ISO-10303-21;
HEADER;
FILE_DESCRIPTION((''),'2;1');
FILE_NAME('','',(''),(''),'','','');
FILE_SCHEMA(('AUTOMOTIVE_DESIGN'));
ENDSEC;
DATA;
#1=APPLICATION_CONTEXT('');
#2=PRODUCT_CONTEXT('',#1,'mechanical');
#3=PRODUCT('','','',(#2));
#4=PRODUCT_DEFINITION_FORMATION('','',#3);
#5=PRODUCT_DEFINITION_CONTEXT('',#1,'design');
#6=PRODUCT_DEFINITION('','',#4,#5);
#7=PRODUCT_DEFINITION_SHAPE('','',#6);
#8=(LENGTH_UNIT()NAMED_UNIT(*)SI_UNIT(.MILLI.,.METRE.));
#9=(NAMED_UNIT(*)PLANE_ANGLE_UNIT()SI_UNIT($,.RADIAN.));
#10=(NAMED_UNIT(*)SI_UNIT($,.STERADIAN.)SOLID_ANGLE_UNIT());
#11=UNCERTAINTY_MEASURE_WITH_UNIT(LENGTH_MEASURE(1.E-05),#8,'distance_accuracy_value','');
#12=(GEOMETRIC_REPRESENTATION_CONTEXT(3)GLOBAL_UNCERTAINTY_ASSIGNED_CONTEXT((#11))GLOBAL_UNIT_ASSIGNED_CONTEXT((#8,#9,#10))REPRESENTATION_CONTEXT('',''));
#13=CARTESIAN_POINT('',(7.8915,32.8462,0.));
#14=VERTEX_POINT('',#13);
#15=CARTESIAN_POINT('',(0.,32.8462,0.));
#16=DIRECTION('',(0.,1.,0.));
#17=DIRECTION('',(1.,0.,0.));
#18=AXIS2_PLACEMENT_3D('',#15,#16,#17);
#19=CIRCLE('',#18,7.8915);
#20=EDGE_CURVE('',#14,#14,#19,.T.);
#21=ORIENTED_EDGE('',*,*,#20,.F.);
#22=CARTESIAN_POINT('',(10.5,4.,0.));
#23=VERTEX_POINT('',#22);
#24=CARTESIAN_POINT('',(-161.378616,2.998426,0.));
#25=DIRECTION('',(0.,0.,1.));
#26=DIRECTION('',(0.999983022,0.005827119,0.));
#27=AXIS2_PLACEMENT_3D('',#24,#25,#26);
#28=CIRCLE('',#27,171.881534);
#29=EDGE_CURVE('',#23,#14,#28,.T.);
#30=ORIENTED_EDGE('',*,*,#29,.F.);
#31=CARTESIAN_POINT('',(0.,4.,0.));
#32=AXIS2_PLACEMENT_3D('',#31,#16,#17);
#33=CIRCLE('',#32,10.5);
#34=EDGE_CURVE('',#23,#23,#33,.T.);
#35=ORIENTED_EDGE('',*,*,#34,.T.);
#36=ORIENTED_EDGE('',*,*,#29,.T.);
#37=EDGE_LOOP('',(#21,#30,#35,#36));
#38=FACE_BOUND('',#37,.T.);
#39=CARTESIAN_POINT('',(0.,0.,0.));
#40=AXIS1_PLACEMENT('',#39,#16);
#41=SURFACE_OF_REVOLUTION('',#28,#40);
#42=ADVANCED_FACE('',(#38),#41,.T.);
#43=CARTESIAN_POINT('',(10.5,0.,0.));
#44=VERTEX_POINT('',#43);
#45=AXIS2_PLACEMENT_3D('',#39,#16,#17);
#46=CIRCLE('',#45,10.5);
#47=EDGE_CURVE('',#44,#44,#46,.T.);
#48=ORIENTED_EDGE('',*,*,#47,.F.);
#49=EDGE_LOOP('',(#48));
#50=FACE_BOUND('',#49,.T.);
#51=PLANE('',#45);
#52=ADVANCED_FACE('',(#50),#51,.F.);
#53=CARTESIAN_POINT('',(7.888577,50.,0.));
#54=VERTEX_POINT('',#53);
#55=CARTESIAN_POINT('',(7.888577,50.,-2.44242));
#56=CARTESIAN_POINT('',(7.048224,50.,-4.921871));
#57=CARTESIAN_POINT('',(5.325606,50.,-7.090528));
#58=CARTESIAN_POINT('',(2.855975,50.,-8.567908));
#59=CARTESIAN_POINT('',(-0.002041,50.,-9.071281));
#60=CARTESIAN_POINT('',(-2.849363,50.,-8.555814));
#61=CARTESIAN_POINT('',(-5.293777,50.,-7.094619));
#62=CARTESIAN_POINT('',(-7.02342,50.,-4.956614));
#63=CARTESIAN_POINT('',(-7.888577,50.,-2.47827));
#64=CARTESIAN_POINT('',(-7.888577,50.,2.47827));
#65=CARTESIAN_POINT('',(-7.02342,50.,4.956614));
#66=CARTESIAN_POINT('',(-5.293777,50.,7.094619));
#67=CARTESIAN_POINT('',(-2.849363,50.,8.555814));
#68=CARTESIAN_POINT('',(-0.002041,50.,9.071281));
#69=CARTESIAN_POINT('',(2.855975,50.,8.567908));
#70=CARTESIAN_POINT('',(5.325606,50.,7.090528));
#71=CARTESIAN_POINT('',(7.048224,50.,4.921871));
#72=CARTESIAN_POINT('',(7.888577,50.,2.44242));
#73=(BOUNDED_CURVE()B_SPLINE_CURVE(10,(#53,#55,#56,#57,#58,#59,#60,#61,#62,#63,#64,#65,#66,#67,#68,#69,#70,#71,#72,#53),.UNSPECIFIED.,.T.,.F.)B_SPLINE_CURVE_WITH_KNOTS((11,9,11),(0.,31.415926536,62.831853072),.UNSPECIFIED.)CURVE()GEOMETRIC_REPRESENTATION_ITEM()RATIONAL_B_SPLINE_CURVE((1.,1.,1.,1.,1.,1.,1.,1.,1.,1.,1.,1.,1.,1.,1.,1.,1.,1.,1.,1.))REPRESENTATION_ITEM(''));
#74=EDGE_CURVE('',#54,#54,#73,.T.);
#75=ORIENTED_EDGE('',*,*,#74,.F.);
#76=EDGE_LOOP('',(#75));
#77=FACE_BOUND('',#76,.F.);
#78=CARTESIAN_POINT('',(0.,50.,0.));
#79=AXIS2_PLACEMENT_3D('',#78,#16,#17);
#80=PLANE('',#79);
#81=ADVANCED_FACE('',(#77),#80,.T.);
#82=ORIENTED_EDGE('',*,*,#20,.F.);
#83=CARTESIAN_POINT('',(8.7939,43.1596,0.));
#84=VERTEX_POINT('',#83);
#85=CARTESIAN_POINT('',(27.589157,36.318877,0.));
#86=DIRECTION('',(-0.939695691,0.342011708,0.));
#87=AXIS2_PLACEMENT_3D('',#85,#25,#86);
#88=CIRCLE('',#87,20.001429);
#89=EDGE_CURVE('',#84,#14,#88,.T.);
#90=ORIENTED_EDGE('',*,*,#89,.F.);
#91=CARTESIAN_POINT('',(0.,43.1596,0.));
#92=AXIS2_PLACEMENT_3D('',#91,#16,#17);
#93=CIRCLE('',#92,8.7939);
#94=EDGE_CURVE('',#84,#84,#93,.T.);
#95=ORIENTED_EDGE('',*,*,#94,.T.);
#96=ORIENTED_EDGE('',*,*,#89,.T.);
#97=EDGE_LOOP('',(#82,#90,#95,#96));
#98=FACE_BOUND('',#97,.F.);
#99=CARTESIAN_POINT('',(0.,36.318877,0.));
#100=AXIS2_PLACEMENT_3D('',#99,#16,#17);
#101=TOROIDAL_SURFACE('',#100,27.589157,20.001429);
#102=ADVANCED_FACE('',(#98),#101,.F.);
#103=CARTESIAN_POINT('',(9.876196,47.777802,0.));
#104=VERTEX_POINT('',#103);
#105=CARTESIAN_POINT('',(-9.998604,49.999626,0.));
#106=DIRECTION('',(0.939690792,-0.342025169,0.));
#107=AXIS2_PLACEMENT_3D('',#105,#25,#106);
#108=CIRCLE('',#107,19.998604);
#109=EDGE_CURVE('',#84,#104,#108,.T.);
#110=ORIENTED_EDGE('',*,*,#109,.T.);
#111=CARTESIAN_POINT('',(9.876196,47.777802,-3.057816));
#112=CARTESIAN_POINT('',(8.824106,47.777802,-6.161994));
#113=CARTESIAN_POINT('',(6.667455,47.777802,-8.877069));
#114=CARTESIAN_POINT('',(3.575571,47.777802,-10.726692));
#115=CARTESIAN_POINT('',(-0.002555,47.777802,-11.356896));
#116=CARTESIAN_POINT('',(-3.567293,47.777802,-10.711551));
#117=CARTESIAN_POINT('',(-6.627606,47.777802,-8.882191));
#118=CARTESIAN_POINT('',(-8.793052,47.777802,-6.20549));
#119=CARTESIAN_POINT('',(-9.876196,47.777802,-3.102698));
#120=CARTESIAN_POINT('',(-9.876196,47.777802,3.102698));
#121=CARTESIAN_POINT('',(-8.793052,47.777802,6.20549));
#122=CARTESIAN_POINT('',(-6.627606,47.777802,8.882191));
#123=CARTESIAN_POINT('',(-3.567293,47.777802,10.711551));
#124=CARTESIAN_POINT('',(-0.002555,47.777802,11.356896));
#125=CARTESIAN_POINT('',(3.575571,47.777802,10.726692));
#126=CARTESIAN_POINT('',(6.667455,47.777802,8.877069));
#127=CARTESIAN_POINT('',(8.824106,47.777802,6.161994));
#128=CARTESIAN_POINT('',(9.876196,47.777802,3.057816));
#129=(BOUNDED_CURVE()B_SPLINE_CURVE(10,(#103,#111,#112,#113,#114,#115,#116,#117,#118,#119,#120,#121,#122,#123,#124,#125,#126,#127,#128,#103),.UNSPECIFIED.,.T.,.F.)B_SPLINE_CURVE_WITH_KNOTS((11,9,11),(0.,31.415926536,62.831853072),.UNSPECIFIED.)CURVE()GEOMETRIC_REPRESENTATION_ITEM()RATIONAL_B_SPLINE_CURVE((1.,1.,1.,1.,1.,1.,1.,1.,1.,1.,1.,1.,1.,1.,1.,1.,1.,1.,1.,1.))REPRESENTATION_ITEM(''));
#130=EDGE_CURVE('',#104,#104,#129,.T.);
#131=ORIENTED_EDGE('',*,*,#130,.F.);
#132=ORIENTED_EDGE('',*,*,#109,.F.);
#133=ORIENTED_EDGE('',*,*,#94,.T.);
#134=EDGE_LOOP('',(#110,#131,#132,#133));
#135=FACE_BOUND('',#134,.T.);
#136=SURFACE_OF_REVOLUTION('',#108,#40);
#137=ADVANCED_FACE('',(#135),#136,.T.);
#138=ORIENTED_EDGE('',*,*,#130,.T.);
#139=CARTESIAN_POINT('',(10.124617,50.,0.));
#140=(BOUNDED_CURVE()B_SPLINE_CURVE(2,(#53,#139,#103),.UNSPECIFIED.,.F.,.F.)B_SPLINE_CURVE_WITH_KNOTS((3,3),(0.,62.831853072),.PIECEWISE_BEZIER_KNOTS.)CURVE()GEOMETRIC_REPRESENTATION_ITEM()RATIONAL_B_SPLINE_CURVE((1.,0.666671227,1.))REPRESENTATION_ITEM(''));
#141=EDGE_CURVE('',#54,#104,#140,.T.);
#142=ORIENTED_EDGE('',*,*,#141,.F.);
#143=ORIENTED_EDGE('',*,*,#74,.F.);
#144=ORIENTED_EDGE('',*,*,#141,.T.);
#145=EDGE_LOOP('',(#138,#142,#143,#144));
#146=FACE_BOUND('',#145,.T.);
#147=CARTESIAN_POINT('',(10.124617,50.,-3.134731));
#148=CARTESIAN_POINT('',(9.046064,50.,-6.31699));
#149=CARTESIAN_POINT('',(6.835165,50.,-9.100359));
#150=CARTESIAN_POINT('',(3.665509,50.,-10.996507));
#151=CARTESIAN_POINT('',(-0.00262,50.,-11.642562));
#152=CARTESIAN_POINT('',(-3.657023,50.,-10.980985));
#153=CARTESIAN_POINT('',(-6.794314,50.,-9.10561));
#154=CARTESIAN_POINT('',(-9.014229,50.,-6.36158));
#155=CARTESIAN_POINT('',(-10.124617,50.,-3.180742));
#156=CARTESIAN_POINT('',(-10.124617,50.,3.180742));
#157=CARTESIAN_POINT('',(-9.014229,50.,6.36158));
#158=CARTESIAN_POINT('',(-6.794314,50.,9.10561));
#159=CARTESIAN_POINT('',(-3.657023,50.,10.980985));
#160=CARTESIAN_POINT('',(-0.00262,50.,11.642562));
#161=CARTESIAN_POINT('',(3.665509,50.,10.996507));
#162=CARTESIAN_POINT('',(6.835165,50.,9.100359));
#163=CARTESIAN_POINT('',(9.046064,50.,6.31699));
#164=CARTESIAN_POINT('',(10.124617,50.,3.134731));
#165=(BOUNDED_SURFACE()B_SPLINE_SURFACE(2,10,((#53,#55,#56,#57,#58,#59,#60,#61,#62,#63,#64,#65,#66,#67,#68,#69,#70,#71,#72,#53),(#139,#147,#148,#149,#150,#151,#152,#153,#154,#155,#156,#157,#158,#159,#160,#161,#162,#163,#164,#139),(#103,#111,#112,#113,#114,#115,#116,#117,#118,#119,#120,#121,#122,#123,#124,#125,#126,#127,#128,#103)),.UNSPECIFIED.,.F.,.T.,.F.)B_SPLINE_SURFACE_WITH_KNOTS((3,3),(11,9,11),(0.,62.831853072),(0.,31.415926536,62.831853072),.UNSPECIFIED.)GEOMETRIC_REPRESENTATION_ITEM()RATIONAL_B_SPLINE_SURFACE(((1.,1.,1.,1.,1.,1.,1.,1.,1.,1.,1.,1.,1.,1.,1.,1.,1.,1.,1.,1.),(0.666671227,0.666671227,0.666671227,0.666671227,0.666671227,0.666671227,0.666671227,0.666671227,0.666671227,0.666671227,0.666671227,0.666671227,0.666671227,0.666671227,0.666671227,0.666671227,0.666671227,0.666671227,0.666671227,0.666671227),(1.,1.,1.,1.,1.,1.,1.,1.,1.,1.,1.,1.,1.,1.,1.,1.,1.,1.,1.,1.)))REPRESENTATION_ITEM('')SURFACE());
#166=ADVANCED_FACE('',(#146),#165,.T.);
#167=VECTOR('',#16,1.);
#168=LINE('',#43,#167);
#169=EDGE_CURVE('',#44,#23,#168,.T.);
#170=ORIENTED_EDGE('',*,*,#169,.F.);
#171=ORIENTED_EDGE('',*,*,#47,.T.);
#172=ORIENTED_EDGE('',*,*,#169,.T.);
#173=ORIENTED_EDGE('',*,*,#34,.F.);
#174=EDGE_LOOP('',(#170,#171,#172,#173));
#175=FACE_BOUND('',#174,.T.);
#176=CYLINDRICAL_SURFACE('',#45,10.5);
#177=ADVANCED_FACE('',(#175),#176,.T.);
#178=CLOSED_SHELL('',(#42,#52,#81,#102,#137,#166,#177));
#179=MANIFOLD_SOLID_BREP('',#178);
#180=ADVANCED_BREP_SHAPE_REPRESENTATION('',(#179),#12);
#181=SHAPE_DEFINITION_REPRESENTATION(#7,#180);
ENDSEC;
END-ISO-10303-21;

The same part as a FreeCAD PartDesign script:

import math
import FreeCAD as App
import Part
import Sketcher

V = App.Vector
Q = App.Units.Quantity


def edges_at(feature, points):
    """Names of the edges that pass closest to the given points."""
    edges = feature.Shape.Edges
    near = lambda p: min(range(len(edges)), key=lambda i: edges[i].distToShape(Part.Vertex(*p))[0])
    return sorted({f"Edge{near(p) + 1}" for p in points})

doc = App.newDocument("Part")
body = doc.addObject("PartDesign::Body", "Body")

# Sketch on XY plane
sketch1 = body.newObject("Sketcher::SketchObject", "Sketch")
sketch1.AttachmentSupport = (doc.getObject("XY_Plane"), [""])
sketch1.MapMode = "FlatFace"
sketch1.addGeometry(Part.LineSegment(V(0, 50, 0), V(0, 0, 0)), False)
sketch1.addGeometry(Part.LineSegment(V(0, 0, 0), V(10.5, 0, 0)), False)
sketch1.addGeometry(Part.LineSegment(V(10.5, 0, 0), V(10.5, 4, 0)), False)
sketch1.addGeometry(Part.ArcOfCircle(Part.Circle(V(-161.4, 3, 0), V(0, 0, 1), 171.9), math.radians(0.33), math.radians(10)), False)
sketch1.addGeometry(Part.ArcOfCircle(Part.Circle(V(27.6, 36.3, 0), V(0, 0, 1), 20), math.radians(160), math.radians(190)), False)
sketch1.addGeometry(Part.ArcOfCircle(Part.Circle(V(-10, 50, 0), V(0, 0, 1), 20), math.radians(-20), math.radians(0)), False)
sketch1.addGeometry(Part.LineSegment(V(10, 50, 0), V(0, 50, 0)), False)
sketch1.addConstraint(Sketcher.Constraint("Coincident", 0, 2, 1, 1))
sketch1.addConstraint(Sketcher.Constraint("Coincident", 1, 2, 2, 1))
sketch1.addConstraint(Sketcher.Constraint("Coincident", 2, 2, 3, 1))
sketch1.addConstraint(Sketcher.Constraint("Tangent", 3, 2, 4, 2))
sketch1.addConstraint(Sketcher.Constraint("Tangent", 4, 1, 5, 1))
sketch1.addConstraint(Sketcher.Constraint("Coincident", 5, 2, 6, 1))
sketch1.addConstraint(Sketcher.Constraint("Coincident", 6, 2, 0, 1))
sketch1.addConstraint(Sketcher.Constraint("Vertical", 0))
sketch1.addConstraint(Sketcher.Constraint("Horizontal", 1))
sketch1.addConstraint(Sketcher.Constraint("Vertical", 2))
sketch1.addConstraint(Sketcher.Constraint("Horizontal", 6))
sketch1.addConstraint(Sketcher.Constraint("Coincident", 0, 2, -1, 1))
sketch1.addConstraint(Sketcher.Constraint("DistanceX", 6, 2, 6, 1, Q("10 mm")))
sketch1.addConstraint(Sketcher.Constraint("DistanceY", 0, 2, 0, 1, Q("50 mm")))
sketch1.addConstraint(Sketcher.Constraint("DistanceY", 2, 1, 2, 2, Q("4 mm")))
sketch1.addConstraint(Sketcher.Constraint("DistanceX", 1, 1, 1, 2, Q("10.5 mm")))
sketch1.addConstraint(Sketcher.Constraint("DistanceY", 4, 1, 5, 3, Q("6.84 mm")))
sketch1.addConstraint(Sketcher.Constraint("DistanceY", -1, 1, 5, 3, Q("49.9996 mm")))
sketch1.addConstraint(Sketcher.Constraint("Radius", 3, Q("171.8815 mm")))
sketch1.addConstraint(Sketcher.Constraint("Radius", 4, Q("20.0014 mm")))
sketch1.addConstraint(Sketcher.Constraint("Radius", 5, Q("19.9986 mm")))
revolution = body.newObject("PartDesign::Revolution", "Revolution")
revolution.Profile = sketch1
revolution.ReferenceAxis = (sketch1, ["V_Axis"])
revolution.Angle = 360
doc.recompute()

fillet = body.newObject("PartDesign::Fillet", "Fillet")
fillet.Base = (revolution, edges_at(revolution, [(-10, 50, 0)]))
fillet.Radius = 2

doc.recompute()
